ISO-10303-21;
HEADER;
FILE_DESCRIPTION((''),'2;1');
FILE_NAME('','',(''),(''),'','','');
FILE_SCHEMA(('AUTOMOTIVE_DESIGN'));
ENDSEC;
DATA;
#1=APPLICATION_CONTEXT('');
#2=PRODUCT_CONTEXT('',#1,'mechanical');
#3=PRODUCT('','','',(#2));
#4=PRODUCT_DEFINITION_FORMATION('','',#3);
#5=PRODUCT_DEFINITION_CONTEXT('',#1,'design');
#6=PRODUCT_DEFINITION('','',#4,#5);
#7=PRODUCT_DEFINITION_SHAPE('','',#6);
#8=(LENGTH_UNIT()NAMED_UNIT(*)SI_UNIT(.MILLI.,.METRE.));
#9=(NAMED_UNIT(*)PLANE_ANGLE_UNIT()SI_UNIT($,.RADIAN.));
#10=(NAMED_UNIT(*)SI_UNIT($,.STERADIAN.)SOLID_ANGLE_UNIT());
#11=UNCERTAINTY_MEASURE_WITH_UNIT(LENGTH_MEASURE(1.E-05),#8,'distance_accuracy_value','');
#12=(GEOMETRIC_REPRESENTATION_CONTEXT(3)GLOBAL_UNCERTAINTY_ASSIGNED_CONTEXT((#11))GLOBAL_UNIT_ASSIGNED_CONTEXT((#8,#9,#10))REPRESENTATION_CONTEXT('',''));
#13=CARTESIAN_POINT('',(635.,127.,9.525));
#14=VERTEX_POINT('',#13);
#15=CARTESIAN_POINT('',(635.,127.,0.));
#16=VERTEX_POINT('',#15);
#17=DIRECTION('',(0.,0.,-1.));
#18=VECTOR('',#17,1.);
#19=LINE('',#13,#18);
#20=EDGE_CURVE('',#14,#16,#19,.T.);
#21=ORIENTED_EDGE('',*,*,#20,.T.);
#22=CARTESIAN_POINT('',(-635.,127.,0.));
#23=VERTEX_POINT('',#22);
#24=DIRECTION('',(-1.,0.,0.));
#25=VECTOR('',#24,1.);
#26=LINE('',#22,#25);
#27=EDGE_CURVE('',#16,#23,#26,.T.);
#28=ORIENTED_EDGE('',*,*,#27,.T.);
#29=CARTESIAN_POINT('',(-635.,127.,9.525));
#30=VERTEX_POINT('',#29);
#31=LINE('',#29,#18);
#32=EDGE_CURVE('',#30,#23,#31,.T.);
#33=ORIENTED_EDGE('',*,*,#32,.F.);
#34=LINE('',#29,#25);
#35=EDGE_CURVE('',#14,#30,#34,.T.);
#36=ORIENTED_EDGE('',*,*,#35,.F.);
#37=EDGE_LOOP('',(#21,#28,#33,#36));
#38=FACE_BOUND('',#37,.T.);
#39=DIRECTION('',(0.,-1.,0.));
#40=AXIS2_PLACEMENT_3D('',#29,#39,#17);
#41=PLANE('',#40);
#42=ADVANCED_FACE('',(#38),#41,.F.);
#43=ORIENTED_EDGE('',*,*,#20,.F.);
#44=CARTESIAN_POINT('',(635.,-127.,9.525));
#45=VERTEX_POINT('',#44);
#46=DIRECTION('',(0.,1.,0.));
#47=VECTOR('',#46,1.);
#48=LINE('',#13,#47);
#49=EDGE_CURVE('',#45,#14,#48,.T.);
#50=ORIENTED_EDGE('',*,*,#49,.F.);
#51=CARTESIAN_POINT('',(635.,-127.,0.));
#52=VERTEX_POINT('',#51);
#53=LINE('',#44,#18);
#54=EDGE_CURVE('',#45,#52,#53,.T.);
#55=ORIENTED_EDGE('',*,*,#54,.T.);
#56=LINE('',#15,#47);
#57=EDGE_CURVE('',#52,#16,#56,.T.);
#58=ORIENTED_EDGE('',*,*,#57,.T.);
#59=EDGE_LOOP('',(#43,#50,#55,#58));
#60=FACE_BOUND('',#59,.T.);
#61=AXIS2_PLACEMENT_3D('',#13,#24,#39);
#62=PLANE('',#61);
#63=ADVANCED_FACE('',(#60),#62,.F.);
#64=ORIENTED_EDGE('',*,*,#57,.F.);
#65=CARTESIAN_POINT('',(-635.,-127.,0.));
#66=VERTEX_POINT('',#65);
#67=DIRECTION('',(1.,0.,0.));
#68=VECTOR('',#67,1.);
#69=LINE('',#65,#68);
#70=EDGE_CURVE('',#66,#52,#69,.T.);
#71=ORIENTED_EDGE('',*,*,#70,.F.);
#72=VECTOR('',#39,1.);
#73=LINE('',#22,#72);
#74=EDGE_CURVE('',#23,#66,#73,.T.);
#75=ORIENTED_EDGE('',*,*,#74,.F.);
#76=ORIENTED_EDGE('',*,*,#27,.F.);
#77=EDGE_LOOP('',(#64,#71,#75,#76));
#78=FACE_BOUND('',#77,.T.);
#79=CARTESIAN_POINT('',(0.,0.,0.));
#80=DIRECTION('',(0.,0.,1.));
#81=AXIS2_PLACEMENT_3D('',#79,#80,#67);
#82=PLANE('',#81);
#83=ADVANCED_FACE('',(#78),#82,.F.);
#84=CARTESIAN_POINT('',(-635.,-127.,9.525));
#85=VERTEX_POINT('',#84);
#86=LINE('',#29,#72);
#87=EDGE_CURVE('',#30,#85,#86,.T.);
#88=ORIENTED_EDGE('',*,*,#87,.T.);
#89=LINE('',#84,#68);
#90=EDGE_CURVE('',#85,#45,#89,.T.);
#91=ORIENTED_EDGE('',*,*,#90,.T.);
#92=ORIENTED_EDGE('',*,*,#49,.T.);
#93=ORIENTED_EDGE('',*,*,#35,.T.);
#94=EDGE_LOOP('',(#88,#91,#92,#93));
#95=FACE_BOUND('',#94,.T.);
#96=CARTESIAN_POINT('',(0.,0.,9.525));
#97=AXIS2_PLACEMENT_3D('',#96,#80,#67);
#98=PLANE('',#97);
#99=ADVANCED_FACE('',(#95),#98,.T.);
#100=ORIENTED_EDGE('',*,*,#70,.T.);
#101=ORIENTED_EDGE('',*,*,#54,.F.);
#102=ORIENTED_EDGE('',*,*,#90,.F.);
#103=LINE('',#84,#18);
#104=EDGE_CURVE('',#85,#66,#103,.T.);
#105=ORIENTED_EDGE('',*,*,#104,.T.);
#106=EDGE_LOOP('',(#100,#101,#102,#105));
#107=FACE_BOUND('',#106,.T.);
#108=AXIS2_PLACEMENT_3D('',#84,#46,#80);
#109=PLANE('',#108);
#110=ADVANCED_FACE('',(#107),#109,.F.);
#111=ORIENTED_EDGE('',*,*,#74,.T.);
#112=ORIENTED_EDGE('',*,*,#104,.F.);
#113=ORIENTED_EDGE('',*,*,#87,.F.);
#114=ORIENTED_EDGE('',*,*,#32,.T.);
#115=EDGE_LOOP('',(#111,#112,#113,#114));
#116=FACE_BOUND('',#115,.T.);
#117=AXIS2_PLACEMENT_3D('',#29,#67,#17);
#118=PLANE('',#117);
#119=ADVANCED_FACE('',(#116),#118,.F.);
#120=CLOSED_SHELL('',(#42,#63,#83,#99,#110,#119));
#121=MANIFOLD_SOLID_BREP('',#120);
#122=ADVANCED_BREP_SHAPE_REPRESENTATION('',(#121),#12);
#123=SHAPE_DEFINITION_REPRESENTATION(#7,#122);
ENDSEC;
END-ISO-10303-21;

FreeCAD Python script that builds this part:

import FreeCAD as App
import Part
import Sketcher
from FreeCAD import Vector
Q = App.Units.Quantity

doc = App.newDocument("Part")
body = doc.addObject("PartDesign::Body", "Body")

# Sketch on XY plane
sketch1 = body.newObject("Sketcher::SketchObject", "Sketch")
sketch1.AttachmentSupport = (doc.getObject("XY_Plane"), [""])
sketch1.MapMode = "FlatFace"
sketch1.addGeometry(Part.LineSegment(Vector(-635, 127, 0), Vector(-635, -127, 0)), False)
sketch1.addGeometry(Part.LineSegment(Vector(-635, -127, 0), Vector(635, -127, 0)), False)
sketch1.addGeometry(Part.LineSegment(Vector(635, -127, 0), Vector(635, 127, 0)), False)
sketch1.addGeometry(Part.LineSegment(Vector(635, 127, 0), Vector(-635, 127, 0)), False)
sketch1.addConstraint(Sketcher.Constraint("Coincident", 0, 2, 1, 1))
sketch1.addConstraint(Sketcher.Constraint("Coincident", 1, 2, 2, 1))
sketch1.addConstraint(Sketcher.Constraint("Coincident", 2, 2, 3, 1))
sketch1.addConstraint(Sketcher.Constraint("Coincident", 3, 2, 0, 1))
sketch1.addConstraint(Sketcher.Constraint("Vertical", 0))
sketch1.addConstraint(Sketcher.Constraint("Horizontal", 1))
sketch1.addConstraint(Sketcher.Constraint("Vertical", 2))
sketch1.addConstraint(Sketcher.Constraint("Horizontal", 3))
sketch1.addConstraint(Sketcher.Constraint("Symmetric", 0, 2, 2, 2, -1, 1))
sketch1.addConstraint(Sketcher.Constraint("DistanceX", 1, 1, 1, 2, Q("50 in")))
sketch1.addConstraint(Sketcher.Constraint("DistanceY", 0, 2, 0, 1, Q("10 in")))
pad1 = body.newObject("PartDesign::Pad", "Pad")
pad1.Profile = sketch1
pad1.Length = Q("0.375 in")

doc.recompute()
